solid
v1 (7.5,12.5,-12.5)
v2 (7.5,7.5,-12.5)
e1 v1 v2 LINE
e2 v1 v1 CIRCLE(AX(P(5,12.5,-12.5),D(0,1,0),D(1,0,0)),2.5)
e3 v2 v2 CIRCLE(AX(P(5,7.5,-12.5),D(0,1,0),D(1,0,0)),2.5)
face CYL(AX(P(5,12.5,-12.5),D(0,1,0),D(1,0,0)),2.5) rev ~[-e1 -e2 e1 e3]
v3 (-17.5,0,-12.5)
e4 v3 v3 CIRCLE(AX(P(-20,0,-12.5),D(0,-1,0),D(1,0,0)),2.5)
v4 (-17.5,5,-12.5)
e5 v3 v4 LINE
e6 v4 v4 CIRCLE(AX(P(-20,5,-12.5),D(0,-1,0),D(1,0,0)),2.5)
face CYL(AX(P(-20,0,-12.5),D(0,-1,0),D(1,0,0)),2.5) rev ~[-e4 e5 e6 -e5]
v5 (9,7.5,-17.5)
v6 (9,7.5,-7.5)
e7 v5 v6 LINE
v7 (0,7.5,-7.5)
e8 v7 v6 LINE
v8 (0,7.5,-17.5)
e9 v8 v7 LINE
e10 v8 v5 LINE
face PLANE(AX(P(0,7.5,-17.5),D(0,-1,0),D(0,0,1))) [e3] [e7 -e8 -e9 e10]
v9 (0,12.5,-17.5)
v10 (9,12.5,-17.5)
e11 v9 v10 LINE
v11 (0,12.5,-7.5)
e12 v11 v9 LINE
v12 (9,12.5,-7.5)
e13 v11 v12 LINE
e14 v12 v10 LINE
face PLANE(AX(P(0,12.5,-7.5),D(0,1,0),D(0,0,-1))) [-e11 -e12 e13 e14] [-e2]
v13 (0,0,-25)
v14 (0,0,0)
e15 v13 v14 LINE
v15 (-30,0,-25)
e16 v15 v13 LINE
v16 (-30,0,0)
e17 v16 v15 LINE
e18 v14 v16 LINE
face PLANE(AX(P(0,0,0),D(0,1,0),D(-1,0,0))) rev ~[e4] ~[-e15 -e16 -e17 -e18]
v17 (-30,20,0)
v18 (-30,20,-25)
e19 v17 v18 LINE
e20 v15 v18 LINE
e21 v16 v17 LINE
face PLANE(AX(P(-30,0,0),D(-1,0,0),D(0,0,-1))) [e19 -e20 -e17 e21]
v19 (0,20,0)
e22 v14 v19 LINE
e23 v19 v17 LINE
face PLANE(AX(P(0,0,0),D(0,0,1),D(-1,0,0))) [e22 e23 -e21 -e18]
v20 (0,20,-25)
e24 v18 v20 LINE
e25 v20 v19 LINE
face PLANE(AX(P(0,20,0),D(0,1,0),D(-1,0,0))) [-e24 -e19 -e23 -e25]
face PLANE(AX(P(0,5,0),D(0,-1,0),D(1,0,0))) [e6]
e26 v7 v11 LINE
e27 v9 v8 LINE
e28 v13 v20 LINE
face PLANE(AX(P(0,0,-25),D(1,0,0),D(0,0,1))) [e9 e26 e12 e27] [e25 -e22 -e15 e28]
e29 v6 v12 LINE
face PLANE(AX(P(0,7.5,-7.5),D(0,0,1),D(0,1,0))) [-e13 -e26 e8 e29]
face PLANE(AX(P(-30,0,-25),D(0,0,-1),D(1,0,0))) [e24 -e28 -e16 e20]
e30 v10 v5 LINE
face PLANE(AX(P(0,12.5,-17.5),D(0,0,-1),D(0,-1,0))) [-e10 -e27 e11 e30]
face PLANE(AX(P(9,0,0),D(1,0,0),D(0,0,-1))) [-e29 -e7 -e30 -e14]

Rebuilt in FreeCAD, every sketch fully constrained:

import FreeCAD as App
import Part
import Sketcher

V = App.Vector
Q = App.Units.Quantity

doc = App.newDocument("Part")
body = doc.addObject("PartDesign::Body", "Body")

# Sketch on XZ plane
sketch1 = body.newObject("Sketcher::SketchObject", "Sketch")
sketch1.AttachmentSupport = (doc.getObject("XZ_Plane"), [""])
sketch1.MapMode = "FlatFace"
sketch1.addGeometry([
    Part.LineSegment(V(-30, 0, 0), V(0, 0, 0)),
    Part.LineSegment(V(0, 0, 0), V(0, -25, 0)),
    Part.LineSegment(V(0, -25, 0), V(-30, -25, 0)),
    Part.LineSegment(V(-30, -25, 0), V(-30, 0, 0)),
], False)
sketch1.addConstraint([
    Sketcher.Constraint("Coincident", 0, 2, 1, 1),
    Sketcher.Constraint("Coincident", 1, 2, 2, 1),
    Sketcher.Constraint("Coincident", 2, 2, 3, 1),
    Sketcher.Constraint("Coincident", 3, 2, 0, 1),
    Sketcher.Constraint("Horizontal", 0),
    Sketcher.Constraint("Vertical", 1),
    Sketcher.Constraint("Horizontal", 2),
    Sketcher.Constraint("Vertical", 3),
    Sketcher.Constraint("Coincident", 0, 2, -1, 1),
    Sketcher.Constraint("DistanceX", 0, 1, 0, 2, Q("30 mm")),
    Sketcher.Constraint("DistanceY", 1, 2, 1, 1, Q("25 mm")),
])
pad1 = body.newObject("PartDesign::Pad", "Pad")
pad1.Profile = sketch1
pad1.Length = 20
pad1.Reversed = True

# Sketch on XZ plane
sketch2 = body.newObject("Sketcher::SketchObject", "Sketch001")
sketch2.AttachmentSupport = (doc.getObject("XZ_Plane"), [""])
sketch2.MapMode = "FlatFace"
sketch2.addGeometry(Part.Circle(V(-20, -12.5, 0), V(0, 0, 1), 2.5), False)
sketch2.addConstraint([
    Sketcher.Constraint("Diameter", 0, Q("5 mm")),
    Sketcher.Constraint("DistanceX", 0, 3, -1, 1, Q("20 mm")),
    Sketcher.Constraint("DistanceY", 0, 3, -1, 1, Q("12.5 mm")),
])
pocket1 = body.newObject("PartDesign::Pocket", "Pocket")
pocket1.Profile = sketch2
pocket1.Length = 5

# Sketch on YZ plane
sketch3 = body.newObject("Sketcher::SketchObject", "Sketch002")
sketch3.AttachmentSupport = (doc.getObject("YZ_Plane"), [""])
sketch3.MapMode = "FlatFace"
sketch3.addGeometry([
    Part.LineSegment(V(8, -8, 0), V(8, -18, 0)),
    Part.LineSegment(V(8, -18, 0), V(12, -18, 0)),
    Part.LineSegment(V(12, -18, 0), V(12, -8, 0)),
    Part.LineSegment(V(12, -8, 0), V(8, -8, 0)),
], False)
sketch3.addConstraint([
    Sketcher.Constraint("Coincident", 0, 2, 1, 1),
    Sketcher.Constraint("Coincident", 1, 2, 2, 1),
    Sketcher.Constraint("Coincident", 2, 2, 3, 1),
    Sketcher.Constraint("Coincident", 3, 2, 0, 1),
    Sketcher.Constraint("Vertical", 0),
    Sketcher.Constraint("Horizontal", 1),
    Sketcher.Constraint("Vertical", 2),
    Sketcher.Constraint("Horizontal", 3),
    Sketcher.Constraint("DistanceX", 1, 1, 1, 2, Q("5 mm")),
    Sketcher.Constraint("DistanceY", 0, 2, 0, 1, Q("10 mm")),
    Sketcher.Constraint("DistanceX", -1, 1, 0, 2, Q("7.5 mm")),
    Sketcher.Constraint("DistanceY", 0, 2, -1, 1, Q("17.5 mm")),
])
pad2 = body.newObject("PartDesign::Pad", "Pad001")
pad2.Profile = sketch3
pad2.Length = 9

# Sketch on XZ plane
sketch4 = body.newObject("Sketcher::SketchObject", "Sketch003")
sketch4.AttachmentSupport = (doc.getObject("XZ_Plane"), [""])
sketch4.MapMode = "FlatFace"
sketch4.AttachmentOffset = App.Placement(V(0, 0, -12.5), App.Rotation())
sketch4.addGeometry(Part.Circle(V(5, -12.5, 0), V(0, 0, 1), 2.5), False)
sketch4.addConstraint([
    Sketcher.Constraint("Diameter", 0, Q("5 mm")),
    Sketcher.Constraint("DistanceX", -1, 1, 0, 3, Q("5 mm")),
    Sketcher.Constraint("DistanceY", 0, 3, -1, 1, Q("12.5 mm")),
])
pocket2 = body.newObject("PartDesign::Pocket", "Pocket001")
pocket2.Profile = sketch4
pocket2.Type = "ThroughAll"
pocket2.Reversed = True

doc.recompute()
